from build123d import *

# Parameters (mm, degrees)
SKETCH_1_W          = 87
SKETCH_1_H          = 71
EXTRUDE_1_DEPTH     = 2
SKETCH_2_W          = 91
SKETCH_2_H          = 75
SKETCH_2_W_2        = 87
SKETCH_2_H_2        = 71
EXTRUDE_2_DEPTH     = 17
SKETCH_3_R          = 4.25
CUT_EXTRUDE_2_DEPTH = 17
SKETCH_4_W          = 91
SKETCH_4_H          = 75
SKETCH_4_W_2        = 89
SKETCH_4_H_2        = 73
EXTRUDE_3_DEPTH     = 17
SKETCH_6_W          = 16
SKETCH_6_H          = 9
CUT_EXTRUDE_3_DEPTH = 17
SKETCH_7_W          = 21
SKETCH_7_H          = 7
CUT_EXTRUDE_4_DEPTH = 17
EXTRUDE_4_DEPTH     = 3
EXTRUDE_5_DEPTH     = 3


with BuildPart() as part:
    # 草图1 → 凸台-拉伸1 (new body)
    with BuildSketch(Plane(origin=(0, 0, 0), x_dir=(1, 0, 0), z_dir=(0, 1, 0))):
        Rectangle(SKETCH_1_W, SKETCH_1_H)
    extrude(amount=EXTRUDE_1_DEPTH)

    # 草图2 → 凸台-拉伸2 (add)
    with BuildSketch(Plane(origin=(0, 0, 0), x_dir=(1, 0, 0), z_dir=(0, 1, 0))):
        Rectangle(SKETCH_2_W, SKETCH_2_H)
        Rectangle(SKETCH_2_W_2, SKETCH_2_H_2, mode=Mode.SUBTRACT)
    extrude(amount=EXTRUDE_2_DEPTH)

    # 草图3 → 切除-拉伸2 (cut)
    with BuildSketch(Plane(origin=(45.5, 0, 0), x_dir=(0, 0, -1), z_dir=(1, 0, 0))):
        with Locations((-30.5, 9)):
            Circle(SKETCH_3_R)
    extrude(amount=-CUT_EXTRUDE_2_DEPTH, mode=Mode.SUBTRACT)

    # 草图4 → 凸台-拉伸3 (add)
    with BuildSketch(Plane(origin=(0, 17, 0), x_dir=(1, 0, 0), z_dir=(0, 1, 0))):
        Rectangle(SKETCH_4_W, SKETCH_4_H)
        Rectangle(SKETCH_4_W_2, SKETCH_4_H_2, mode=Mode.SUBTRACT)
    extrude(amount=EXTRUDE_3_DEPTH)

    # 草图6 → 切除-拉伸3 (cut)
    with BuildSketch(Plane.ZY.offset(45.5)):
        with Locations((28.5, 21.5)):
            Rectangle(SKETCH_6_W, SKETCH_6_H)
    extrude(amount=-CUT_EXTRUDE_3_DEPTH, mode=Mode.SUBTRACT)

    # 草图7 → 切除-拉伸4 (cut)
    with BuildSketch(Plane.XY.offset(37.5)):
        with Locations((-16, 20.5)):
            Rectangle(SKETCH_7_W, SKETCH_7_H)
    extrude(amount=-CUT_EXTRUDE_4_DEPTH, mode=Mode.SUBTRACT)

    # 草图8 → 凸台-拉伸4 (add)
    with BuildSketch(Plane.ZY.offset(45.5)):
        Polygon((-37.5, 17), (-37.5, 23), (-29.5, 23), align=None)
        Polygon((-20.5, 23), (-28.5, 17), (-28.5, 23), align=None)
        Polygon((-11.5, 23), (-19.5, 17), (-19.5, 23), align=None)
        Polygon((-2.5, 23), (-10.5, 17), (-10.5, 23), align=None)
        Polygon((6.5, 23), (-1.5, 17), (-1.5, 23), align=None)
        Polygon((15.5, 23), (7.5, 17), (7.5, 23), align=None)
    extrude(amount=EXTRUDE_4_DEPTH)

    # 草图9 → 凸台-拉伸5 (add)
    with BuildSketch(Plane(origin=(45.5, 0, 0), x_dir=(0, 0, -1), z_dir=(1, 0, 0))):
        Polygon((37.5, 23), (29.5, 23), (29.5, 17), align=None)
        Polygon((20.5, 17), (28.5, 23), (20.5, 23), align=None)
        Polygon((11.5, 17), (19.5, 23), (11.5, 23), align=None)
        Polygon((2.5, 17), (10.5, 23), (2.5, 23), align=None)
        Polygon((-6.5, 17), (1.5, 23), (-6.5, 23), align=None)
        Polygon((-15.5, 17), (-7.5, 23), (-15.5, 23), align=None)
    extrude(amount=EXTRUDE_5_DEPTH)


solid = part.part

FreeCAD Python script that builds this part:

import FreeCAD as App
import Part
import Sketcher
from FreeCAD import Vector
Q = App.Units.Quantity

doc = App.newDocument("Part")
body = doc.addObject("PartDesign::Body", "Body")

sketch1 = doc.addObject("Sketcher::SketchObject", "Sketch")
body.addObject(sketch1)
sketch1.AttachmentSupport = (doc.XZ_Plane, [""])
sketch1.MapMode = "FlatFace"
sketch1.addGeometry(Part.LineSegment(Vector(-44, -36, 0), Vector(-44, 36, 0)), False)
sketch1.addGeometry(Part.LineSegment(Vector(-44, 36, 0), Vector(44, 36, 0)), False)
sketch1.addGeometry(Part.LineSegment(Vector(44, 36, 0), Vector(44, -36, 0)), False)
sketch1.addGeometry(Part.LineSegment(Vector(44, -36, 0), Vector(-44, -36, 0)), False)
sketch1.addConstraint(Sketcher.Constraint("Coincident", 0, 2, 1, 1))
sketch1.addConstraint(Sketcher.Constraint("Coincident", 1, 2, 2, 1))
sketch1.addConstraint(Sketcher.Constraint("Coincident", 2, 2, 3, 1))
sketch1.addConstraint(Sketcher.Constraint("Coincident", 3, 2, 0, 1))
sketch1.addConstraint(Sketcher.Constraint("Vertical", 0))
sketch1.addConstraint(Sketcher.Constraint("Horizontal", 1))
sketch1.addConstraint(Sketcher.Constraint("Vertical", 2))
sketch1.addConstraint(Sketcher.Constraint("Horizontal", 3))
sketch1.addConstraint(Sketcher.Constraint("Symmetric", 0, 2, 2, 2, -1, 1))
sketch1.addConstraint(Sketcher.Constraint("DistanceX", 1, 1, 1, 2, Q("87 mm")))
sketch1.addConstraint(Sketcher.Constraint("DistanceY", 0, 1, 0, 2, Q("71 mm")))
pad1 = doc.addObject("PartDesign::Pad", "Pad")
body.addObject(pad1)
pad1.Profile = sketch1
pad1.Length = 2
pad1.Reversed = True

sketch2 = doc.addObject("Sketcher::SketchObject", "Sketch001")
body.addObject(sketch2)
sketch2.AttachmentSupport = (doc.XZ_Plane, [""])
sketch2.MapMode = "FlatFace"
sketch2.addGeometry(Part.LineSegment(Vector(-46, -38, 0), Vector(-46, 38, 0)), False)
sketch2.addGeometry(Part.LineSegment(Vector(-46, 38, 0), Vector(46, 38, 0)), False)
sketch2.addGeometry(Part.LineSegment(Vector(46, 38, 0), Vector(46, -38, 0)), False)
sketch2.addGeometry(Part.LineSegment(Vector(46, -38, 0), Vector(-46, -38, 0)), False)
sketch2.addGeometry(Part.LineSegment(Vector(44, 36, 0), Vector(-44, 36, 0)), False)
sketch2.addGeometry(Part.LineSegment(Vector(-44, 36, 0), Vector(-44, -36, 0)), False)
sketch2.addGeometry(Part.LineSegment(Vector(-44, -36, 0), Vector(44, -36, 0)), False)
sketch2.addGeometry(Part.LineSegment(Vector(44, -36, 0), Vector(44, 36, 0)), False)
sketch2.addConstraint(Sketcher.Constraint("Coincident", 0, 2, 1, 1))
sketch2.addConstraint(Sketcher.Constraint("Coincident", 1, 2, 2, 1))
sketch2.addConstraint(Sketcher.Constraint("Coincident", 2, 2, 3, 1))
sketch2.addConstraint(Sketcher.Constraint("Coincident", 3, 2, 0, 1))
sketch2.addConstraint(Sketcher.Constraint("Coincident", 4, 2, 5, 1))
sketch2.addConstraint(Sketcher.Constraint("Coincident", 5, 2, 6, 1))
sketch2.addConstraint(Sketcher.Constraint("Coincident", 6, 2, 7, 1))
sketch2.addConstraint(Sketcher.Constraint("Coincident", 7, 2, 4, 1))
sketch2.addConstraint(Sketcher.Constraint("Vertical", 0))
sketch2.addConstraint(Sketcher.Constraint("Horizontal", 1))
sketch2.addConstraint(Sketcher.Constraint("Vertical", 2))
sketch2.addConstraint(Sketcher.Constraint("Horizontal", 3))
sketch2.addConstraint(Sketcher.Constraint("Horizontal", 4))
sketch2.addConstraint(Sketcher.Constraint("Vertical", 5))
sketch2.addConstraint(Sketcher.Constraint("Horizontal", 6))
sketch2.addConstraint(Sketcher.Constraint("Vertical", 7))
sketch2.addConstraint(Sketcher.Constraint("Symmetric", 0, 2, 2, 2, -1, 1))
sketch2.addConstraint(Sketcher.Constraint("Symmetric", 4, 2, 6, 2, -1, 1))
sketch2.addConstraint(Sketcher.Constraint("DistanceX", 1, 1, 1, 2, Q("91 mm")))
sketch2.addConstraint(Sketcher.Constraint("DistanceX", 4, 2, 4, 1, Q("87 mm")))
sketch2.addConstraint(Sketcher.Constraint("DistanceY", 0, 1, 0, 2, Q("75 mm")))
sketch2.addConstraint(Sketcher.Constraint("DistanceY", 5, 2, 5, 1, Q("71 mm")))
pad2 = doc.addObject("PartDesign::Pad", "Pad001")
body.addObject(pad2)
pad2.Profile = sketch2
pad2.Length = 17
pad2.Reversed = True

sketch3 = doc.addObject("Sketcher::SketchObject", "Sketch002")
body.addObject(sketch3)
sketch3.AttachmentSupport = (doc.YZ_Plane, [""])
sketch3.MapMode = "FlatFace"
sketch3.AttachmentOffset = App.Placement(Vector(0, 0, 45.5), App.Rotation())
sketch3.addGeometry(Part.Circle(Vector(9, 30.5, 0), Vector(0, 0, 1), 4.2), False)
sketch3.addConstraint(Sketcher.Constraint("Diameter", 0, Q("8.5 mm")))
sketch3.addConstraint(Sketcher.Constraint("DistanceX", -1, 1, 0, 3, Q("9 mm")))
sketch3.addConstraint(Sketcher.Constraint("DistanceY", -1, 1, 0, 3, Q("30.5 mm")))
pocket1 = doc.addObject("PartDesign::Pocket", "Pocket")
body.addObject(pocket1)
pocket1.Profile = sketch3
pocket1.Length = 17

sketch4 = doc.addObject("Sketcher::SketchObject", "Sketch003")
body.addObject(sketch4)
sketch4.AttachmentSupport = (doc.XZ_Plane, [""])
sketch4.MapMode = "FlatFace"
sketch4.AttachmentOffset = App.Placement(Vector(0, 0, -17), App.Rotation())
sketch4.addGeometry(Part.LineSegment(Vector(-46, -38, 0), Vector(-46, 38, 0)), False)
sketch4.addGeometry(Part.LineSegment(Vector(-46, 38, 0), Vector(46, 38, 0)), False)
sketch4.addGeometry(Part.LineSegment(Vector(46, 38, 0), Vector(46, -38, 0)), False)
sketch4.addGeometry(Part.LineSegment(Vector(46, -38, 0), Vector(-46, -38, 0)), False)
sketch4.addGeometry(Part.LineSegment(Vector(44, 36, 0), Vector(-44, 36, 0)), False)
sketch4.addGeometry(Part.LineSegment(Vector(-44, 36, 0), Vector(-44, -36, 0)), False)
sketch4.addGeometry(Part.LineSegment(Vector(-44, -36, 0), Vector(44, -36, 0)), False)
sketch4.addGeometry(Part.LineSegment(Vector(44, -36, 0), Vector(44, 36, 0)), False)
sketch4.addConstraint(Sketcher.Constraint("Coincident", 0, 2, 1, 1))
sketch4.addConstraint(Sketcher.Constraint("Coincident", 1, 2, 2, 1))
sketch4.addConstraint(Sketcher.Constraint("Coincident", 2, 2, 3, 1))
sketch4.addConstraint(Sketcher.Constraint("Coincident", 3, 2, 0, 1))
sketch4.addConstraint(Sketcher.Constraint("Coincident", 4, 2, 5, 1))
sketch4.addConstraint(Sketcher.Constraint("Coincident", 5, 2, 6, 1))
sketch4.addConstraint(Sketcher.Constraint("Coincident", 6, 2, 7, 1))
sketch4.addConstraint(Sketcher.Constraint("Coincident", 7, 2, 4, 1))
sketch4.addConstraint(Sketcher.Constraint("Vertical", 0))
sketch4.addConstraint(Sketcher.Constraint("Horizontal", 1))
sketch4.addConstraint(Sketcher.Constraint("Vertical", 2))
sketch4.addConstraint(Sketcher.Constraint("Horizontal", 3))
sketch4.addConstraint(Sketcher.Constraint("Horizontal", 4))
sketch4.addConstraint(Sketcher.Constraint("Vertical", 5))
sketch4.addConstraint(Sketcher.Constraint("Horizontal", 6))
sketch4.addConstraint(Sketcher.Constraint("Vertical", 7))
sketch4.addConstraint(Sketcher.Constraint("Symmetric", 0, 2, 2, 2, -1, 1))
sketch4.addConstraint(Sketcher.Constraint("Symmetric", 4, 2, 6, 2, -1, 1))
sketch4.addConstraint(Sketcher.Constraint("DistanceX", 1, 1, 1, 2, Q("91 mm")))
sketch4.addConstraint(Sketcher.Constraint("DistanceX", 4, 2, 4, 1, Q("89 mm")))
sketch4.addConstraint(Sketcher.Constraint("DistanceY", 0, 1, 0, 2, Q("75 mm")))
sketch4.addConstraint(Sketcher.Constraint("DistanceY", 5, 2, 5, 1, Q("73 mm")))
pad3 = doc.addObject("PartDesign::Pad", "Pad002")
body.addObject(pad3)
pad3.Profile = sketch4
pad3.Length = 17
pad3.Reversed = True

sketch5 = doc.addObject("Sketcher::SketchObject", "Sketch004")
body.addObject(sketch5)
sketch5.AttachmentSupport = (doc.YZ_Plane, [""])
sketch5.MapMode = "FlatFace"
sketch5.AttachmentOffset = App.Placement(Vector(0, 0, -45.5), App.Rotation())
sketch5.addGeometry(Part.LineSegment(Vector(26, 20, 0), Vector(17, 20, 0)), False)
sketch5.addGeometry(Part.LineSegment(Vector(17, 20, 0), Vector(17, 36, 0)), False)
sketch5.addGeometry(Part.LineSegment(Vector(17, 36, 0), Vector(26, 36, 0)), False)
sketch5.addGeometry(Part.LineSegment(Vector(26, 36, 0), Vector(26, 20, 0)), False)
sketch5.addConstraint(Sketcher.Constraint("Coincident", 0, 2, 1, 1))
sketch5.addConstraint(Sketcher.Constraint("Coincident", 1, 2, 2, 1))
sketch5.addConstraint(Sketcher.Constraint("Coincident", 2, 2, 3, 1))
sketch5.addConstraint(Sketcher.Constraint("Coincident", 3, 2, 0, 1))
sketch5.addConstraint(Sketcher.Constraint("Horizontal", 0))
sketch5.addConstraint(Sketcher.Constraint("Vertical", 1))
sketch5.addConstraint(Sketcher.Constraint("Horizontal", 2))
sketch5.addConstraint(Sketcher.Constraint("Vertical", 3))
sketch5.addConstraint(Sketcher.Constraint("DistanceX", 0, 2, 0, 1, Q("9 mm")))
sketch5.addConstraint(Sketcher.Constraint("DistanceY", 1, 1, 1, 2, Q("16 mm")))
sketch5.addConstraint(Sketcher.Constraint("DistanceX", -1, 1, 0, 2, Q("17 mm")))
sketch5.addConstraint(Sketcher.Constraint("DistanceY", -1, 1, 0, 2, Q("20.5 mm")))
pocket2 = doc.addObject("PartDesign::Pocket", "Pocket001")
body.addObject(pocket2)
pocket2.Profile = sketch5
pocket2.Length = 17
pocket2.Reversed = True

sketch6 = doc.addObject("Sketcher::SketchObject", "Sketch005")
body.addObject(sketch6)
sketch6.AttachmentSupport = (doc.XY_Plane, [""])
sketch6.MapMode = "FlatFace"
sketch6.AttachmentOffset = App.Placement(Vector(0, 0, 37.5), App.Rotation())
sketch6.addGeometry(Part.LineSegment(Vector(-26, 24, 0), Vector(-26, 17, 0)), False)
sketch6.addGeometry(Part.LineSegment(Vector(-26, 17, 0), Vector(-6, 17, 0)), False)
sketch6.addGeometry(Part.LineSegment(Vector(-6, 17, 0), Vector(-6, 24, 0)), False)
sketch6.addGeometry(Part.LineSegment(Vector(-6, 24, 0), Vector(-26, 24, 0)), False)
sketch6.addConstraint(Sketcher.Constraint("Coincident", 0, 2, 1, 1))
sketch6.addConstraint(Sketcher.Constraint("Coincident", 1, 2, 2, 1))
sketch6.addConstraint(Sketcher.Constraint("Coincident", 2, 2, 3, 1))
sketch6.addConstraint(Sketcher.Constraint("Coincident", 3, 2, 0, 1))
sketch6.addConstraint(Sketcher.Constraint("Vertical", 0))
sketch6.addConstraint(Sketcher.Constraint("Horizontal", 1))
sketch6.addConstraint(Sketcher.Constraint("Vertical", 2))
sketch6.addConstraint(Sketcher.Constraint("Horizontal", 3))
sketch6.addConstraint(Sketcher.Constraint("DistanceX", 1, 1, 1, 2, Q("21 mm")))
sketch6.addConstraint(Sketcher.Constraint("DistanceY", 0, 2, 0, 1, Q("7 mm")))
sketch6.addConstraint(Sketcher.Constraint("DistanceY", -1, 1, 0, 2, Q("17 mm")))
sketch6.addConstraint(Sketcher.Constraint("DistanceX", 0, 2, -1, 1, Q("26.5 mm")))
pocket3 = doc.addObject("PartDesign::Pocket", "Pocket002")
body.addObject(pocket3)
pocket3.Profile = sketch6
pocket3.Length = 17

sketch7 = doc.addObject("Sketcher::SketchObject", "Sketch006")
body.addObject(sketch7)
sketch7.AttachmentSupport = (doc.YZ_Plane, [""])
sketch7.MapMode = "FlatFace"
sketch7.AttachmentOffset = App.Placement(Vector(0, 0, -45.5), App.Rotation())
sketch7.addGeometry(Part.LineSegment(Vector(23, -38, 0), Vector(17, -38, 0)), False)
sketch7.addGeometry(Part.LineSegment(Vector(17, -38, 0), Vector(23, -30, 0)), False)
sketch7.addGeometry(Part.LineSegment(Vector(23, -30, 0), Vector(23, -38, 0)), False)
sketch7.addGeometry(Part.LineSegment(Vector(17, -28, 0), Vector(23, -20, 0)), False)
sketch7.addGeometry(Part.LineSegment(Vector(23, -20, 0), Vector(23, -28, 0)), False)
sketch7.addGeometry(Part.LineSegment(Vector(23, -28, 0), Vector(17, -28, 0)), False)
sketch7.addGeometry(Part.LineSegment(Vector(17, -20, 0), Vector(23, -12, 0)), False)
sketch7.addGeometry(Part.LineSegment(Vector(23, -12, 0), Vector(23, -20, 0)), False)
sketch7.addGeometry(Part.LineSegment(Vector(23, -20, 0), Vector(17, -20, 0)), False)
sketch7.addGeometry(Part.LineSegment(Vector(17, -10, 0), Vector(23, -2, 0)), False)
sketch7.addGeometry(Part.LineSegment(Vector(23, -2, 0), Vector(23, -10, 0)), False)
sketch7.addGeometry(Part.LineSegment(Vector(23, -10, 0), Vector(17, -10, 0)), False)
sketch7.addGeometry(Part.LineSegment(Vector(17, -2, 0), Vector(23, 6, 0)), False)
sketch7.addGeometry(Part.LineSegment(Vector(23, 6, 0), Vector(23, -2, 0)), False)
sketch7.addGeometry(Part.LineSegment(Vector(23, -2, 0), Vector(17, -2, 0)), False)
sketch7.addGeometry(Part.LineSegment(Vector(17, 8, 0), Vector(23, 16, 0)), False)
sketch7.addGeometry(Part.LineSegment(Vector(23, 16, 0), Vector(23, 8, 0)), False)
sketch7.addGeometry(Part.LineSegment(Vector(23, 8, 0), Vector(17, 8, 0)), False)
sketch7.addConstraint(Sketcher.Constraint("Coincident", 0, 2, 1, 1))
sketch7.addConstraint(Sketcher.Constraint("Coincident", 1, 2, 2, 1))
sketch7.addConstraint(Sketcher.Constraint("Coincident", 2, 2, 0, 1))
sketch7.addConstraint(Sketcher.Constraint("Coincident", 3, 2, 4, 1))
sketch7.addConstraint(Sketcher.Constraint("Coincident", 4, 2, 5, 1))
sketch7.addConstraint(Sketcher.Constraint("Coincident", 5, 2, 3, 1))
sketch7.addConstraint(Sketcher.Constraint("Coincident", 6, 2, 7, 1))
sketch7.addConstraint(Sketcher.Constraint("Coincident", 7, 2, 8, 1))
sketch7.addConstraint(Sketcher.Constraint("Coincident", 8, 2, 6, 1))
sketch7.addConstraint(Sketcher.Constraint("Coincident", 9, 2, 10, 1))
sketch7.addConstraint(Sketcher.Constraint("Coincident", 10, 2, 11, 1))
sketch7.addConstraint(Sketcher.Constraint("Coincident", 11, 2, 9, 1))
sketch7.addConstraint(Sketcher.Constraint("Coincident", 12, 2, 13, 1))
sketch7.addConstraint(Sketcher.Constraint("Coincident", 13, 2, 14, 1))
sketch7.addConstraint(Sketcher.Constraint("Coincident", 14, 2, 12, 1))
sketch7.addConstraint(Sketcher.Constraint("Coincident", 15, 2, 16, 1))
sketch7.addConstraint(Sketcher.Constraint("Coincident", 16, 2, 17, 1))
sketch7.addConstraint(Sketcher.Constraint("Coincident", 17, 2, 15, 1))
sketch7.addConstraint(Sketcher.Constraint("Horizontal", 0))
sketch7.addConstraint(Sketcher.Constraint("Vertical", 2))
sketch7.addConstraint(Sketcher.Constraint("Vertical", 4))
sketch7.addConstraint(Sketcher.Constraint("Horizontal", 5))
sketch7.addConstraint(Sketcher.Constraint("Vertical", 7))
sketch7.addConstraint(Sketcher.Constraint("Horizontal", 8))
sketch7.addConstraint(Sketcher.Constraint("Vertical", 10))
sketch7.addConstraint(Sketcher.Constraint("Horizontal", 11))
sketch7.addConstraint(Sketcher.Constraint("Vertical", 13))
sketch7.addConstraint(Sketcher.Constraint("Horizontal", 14))
sketch7.addConstraint(Sketcher.Constraint("Vertical", 16))
sketch7.addConstraint(Sketcher.Constraint("Horizontal", 17))
sketch7.addConstraint(Sketcher.Constraint("Parallel", 1, 3))
sketch7.addConstraint(Sketcher.Constraint("Parallel", 3, 6))
sketch7.addConstraint(Sketcher.Constraint("Parallel", 6, 9))
sketch7.addConstraint(Sketcher.Constraint("Parallel", 9, 12))
sketch7.addConstraint(Sketcher.Constraint("Parallel", 12, 15))
sketch7.addConstraint(Sketcher.Constraint("Vertical", 2, 2, 3, 2))
sketch7.addConstraint(Sketcher.Constraint("Vertical", 0, 2, 5, 2))
sketch7.addConstraint(Sketcher.Constraint("Vertical", 4, 2, 6, 2))
sketch7.addConstraint(Sketcher.Constraint("Vertical", 5, 2, 8, 2))
sketch7.addConstraint(Sketcher.Constraint("Vertical", 7, 2, 9, 2))
sketch7.addConstraint(Sketcher.Constraint("Vertical", 8, 2, 11, 2))
sketch7.addConstraint(Sketcher.Constraint("Vertical", 10, 2, 12, 2))
sketch7.addConstraint(Sketcher.Constraint("Vertical", 11, 2, 14, 2))
sketch7.addConstraint(Sketcher.Constraint("Vertical", 13, 2, 15, 2))
sketch7.addConstraint(Sketcher.Constraint("Vertical", 14, 2, 17, 2))
sketch7.addConstraint(Sketcher.Constraint("DistanceX", 0, 2, 0, 1, Q("6 mm")))
sketch7.addConstraint(Sketcher.Constraint("DistanceY", 2, 2, 2, 1, Q("8 mm")))
sketch7.addConstraint(Sketcher.Constraint("DistanceX", -1, 1, 0, 2, Q("17 mm")))
sketch7.addConstraint(Sketcher.Constraint("DistanceY", 1, 2, 3, 2, Q("9 mm")))
sketch7.addConstraint(Sketcher.Constraint("DistanceY", 3, 2, 6, 2, Q("9 mm")))
sketch7.addConstraint(Sketcher.Constraint("DistanceY", 6, 2, 9, 2, Q("9 mm")))
sketch7.addConstraint(Sketcher.Constraint("DistanceY", 9, 2, 12, 2, Q("9 mm")))
sketch7.addConstraint(Sketcher.Constraint("DistanceY", 12, 2, 15, 2, Q("9 mm")))
sketch7.addConstraint(Sketcher.Constraint("DistanceY", 0, 2, -1, 1, Q("37.5 mm")))
pad4 = doc.addObject("PartDesign::Pad", "Pad003")
body.addObject(pad4)
pad4.Profile = sketch7
pad4.Length = 3
pad4.Reversed = True

sketch8 = doc.addObject("Sketcher::SketchObject", "Sketch007")
body.addObject(sketch8)
sketch8.AttachmentSupport = (doc.YZ_Plane, [""])
sketch8.MapMode = "FlatFace"
sketch8.AttachmentOffset = App.Placement(Vector(0, 0, 45.5), App.Rotation())
sketch8.addGeometry(Part.LineSegment(Vector(23, -38, 0), Vector(23, -30, 0)), False)
sketch8.addGeometry(Part.LineSegment(Vector(23, -30, 0), Vector(17, -30, 0)), False)
sketch8.addGeometry(Part.LineSegment(Vector(17, -30, 0), Vector(23, -38, 0)), False)
sketch8.addGeometry(Part.LineSegment(Vector(17, -20, 0), Vector(23, -28, 0)), False)
sketch8.addGeometry(Part.LineSegment(Vector(23, -28, 0), Vector(23, -20, 0)), False)
sketch8.addGeometry(Part.LineSegment(Vector(23, -20, 0), Vector(17, -20, 0)), False)
sketch8.addGeometry(Part.LineSegment(Vector(17, -12, 0), Vector(23, -20, 0)), False)
sketch8.addGeometry(Part.LineSegment(Vector(23, -20, 0), Vector(23, -12, 0)), False)
sketch8.addGeometry(Part.LineSegment(Vector(23, -12, 0), Vector(17, -12, 0)), False)
sketch8.addGeometry(Part.LineSegment(Vector(17, -2, 0), Vector(23, -10, 0)), False)
sketch8.addGeometry(Part.LineSegment(Vector(23, -10, 0), Vector(23, -2, 0)), False)
sketch8.addGeometry(Part.LineSegment(Vector(23, -2, 0), Vector(17, -2, 0)), False)
sketch8.addGeometry(Part.LineSegment(Vector(17, 6, 0), Vector(23, -2, 0)), False)
sketch8.addGeometry(Part.LineSegment(Vector(23, -2, 0), Vector(23, 6, 0)), False)
sketch8.addGeometry(Part.LineSegment(Vector(23, 6, 0), Vector(17, 6, 0)), False)
sketch8.addGeometry(Part.LineSegment(Vector(17, 16, 0), Vector(23, 8, 0)), False)
sketch8.addGeometry(Part.LineSegment(Vector(23, 8, 0), Vector(23, 16, 0)), False)
sketch8.addGeometry(Part.LineSegment(Vector(23, 16, 0), Vector(17, 16, 0)), False)
sketch8.addConstraint(Sketcher.Constraint("Coincident", 0, 2, 1, 1))
sketch8.addConstraint(Sketcher.Constraint("Coincident", 1, 2, 2, 1))
sketch8.addConstraint(Sketcher.Constraint("Coincident", 2, 2, 0, 1))
sketch8.addConstraint(Sketcher.Constraint("Coincident", 3, 2, 4, 1))
sketch8.addConstraint(Sketcher.Constraint("Coincident", 4, 2, 5, 1))
sketch8.addConstraint(Sketcher.Constraint("Coincident", 5, 2, 3, 1))
sketch8.addConstraint(Sketcher.Constraint("Coincident", 6, 2, 7, 1))
sketch8.addConstraint(Sketcher.Constraint("Coincident", 7, 2, 8, 1))
sketch8.addConstraint(Sketcher.Constraint("Coincident", 8, 2, 6, 1))
sketch8.addConstraint(Sketcher.Constraint("Coincident", 9, 2, 10, 1))
sketch8.addConstraint(Sketcher.Constraint("Coincident", 10, 2, 11, 1))
sketch8.addConstraint(Sketcher.Constraint("Coincident", 11, 2, 9, 1))
sketch8.addConstraint(Sketcher.Constraint("Coincident", 12, 2, 13, 1))
sketch8.addConstraint(Sketcher.Constraint("Coincident", 13, 2, 14, 1))
sketch8.addConstraint(Sketcher.Constraint("Coincident", 14, 2, 12, 1))
sketch8.addConstraint(Sketcher.Constraint("Coincident", 15, 2, 16, 1))
sketch8.addConstraint(Sketcher.Constraint("Coincident", 16, 2, 17, 1))
sketch8.addConstraint(Sketcher.Constraint("Coincident", 17, 2, 15, 1))
sketch8.addConstraint(Sketcher.Constraint("Vertical", 0))
sketch8.addConstraint(Sketcher.Constraint("Horizontal", 1))
sketch8.addConstraint(Sketcher.Constraint("Vertical", 4))
sketch8.addConstraint(Sketcher.Constraint("Horizontal", 5))
sketch8.addConstraint(Sketcher.Constraint("Vertical", 7))
sketch8.addConstraint(Sketcher.Constraint("Horizontal", 8))
sketch8.addConstraint(Sketcher.Constraint("Vertical", 10))
sketch8.addConstraint(Sketcher.Constraint("Horizontal", 11))
sketch8.addConstraint(Sketcher.Constraint("Vertical", 13))
sketch8.addConstraint(Sketcher.Constraint("Horizontal", 14))
sketch8.addConstraint(Sketcher.Constraint("Vertical", 16))
sketch8.addConstraint(Sketcher.Constraint("Horizontal", 17))
sketch8.addConstraint(Sketcher.Constraint("Parallel", 2, 3))
sketch8.addConstraint(Sketcher.Constraint("Parallel", 3, 6))
sketch8.addConstraint(Sketcher.Constraint("Parallel", 6, 9))
sketch8.addConstraint(Sketcher.Constraint("Parallel", 9, 12))
sketch8.addConstraint(Sketcher.Constraint("Parallel", 12, 15))
sketch8.addConstraint(Sketcher.Constraint("Vertical", 2, 2, 3, 2))
sketch8.addConstraint(Sketcher.Constraint("Vertical", 1, 2, 5, 2))
sketch8.addConstraint(Sketcher.Constraint("Vertical", 4, 2, 6, 2))
sketch8.addConstraint(Sketcher.Constraint("Vertical", 5, 2, 8, 2))
sketch8.addConstraint(Sketcher.Constraint("Vertical", 7, 2, 9, 2))
sketch8.addConstraint(Sketcher.Constraint("Vertical", 8, 2, 11, 2))
sketch8.addConstraint(Sketcher.Constraint("Vertical", 10, 2, 12, 2))
sketch8.addConstraint(Sketcher.Constraint("Vertical", 11, 2, 14, 2))
sketch8.addConstraint(Sketcher.Constraint("Vertical", 13, 2, 15, 2))
sketch8.addConstraint(Sketcher.Constraint("Vertical", 14, 2, 17, 2))
sketch8.addConstraint(Sketcher.Constraint("DistanceX", 1, 2, 1, 1, Q("6 mm")))
sketch8.addConstraint(Sketcher.Constraint("DistanceY", 0, 1, 0, 2, Q("8 mm")))
sketch8.addConstraint(Sketcher.Constraint("DistanceX", -1, 1, 0, 2, Q("23 mm")))
sketch8.addConstraint(Sketcher.Constraint("DistanceY", 0, 2, 3, 2, Q("1 mm")))
sketch8.addConstraint(Sketcher.Constraint("DistanceY", 4, 2, 6, 2, Q("1 mm")))
sketch8.addConstraint(Sketcher.Constraint("DistanceY", 7, 2, 9, 2, Q("1 mm")))
sketch8.addConstraint(Sketcher.Constraint("DistanceY", 10, 2, 12, 2, Q("1 mm")))
sketch8.addConstraint(Sketcher.Constraint("DistanceY", 13, 2, 15, 2, Q("1 mm")))
sketch8.addConstraint(Sketcher.Constraint("DistanceY", 0, 2, -1, 1, Q("29.5 mm")))
pad5 = doc.addObject("PartDesign::Pad", "Pad004")
body.addObject(pad5)
pad5.Profile = sketch8
pad5.Length = 3

doc.recompute()
